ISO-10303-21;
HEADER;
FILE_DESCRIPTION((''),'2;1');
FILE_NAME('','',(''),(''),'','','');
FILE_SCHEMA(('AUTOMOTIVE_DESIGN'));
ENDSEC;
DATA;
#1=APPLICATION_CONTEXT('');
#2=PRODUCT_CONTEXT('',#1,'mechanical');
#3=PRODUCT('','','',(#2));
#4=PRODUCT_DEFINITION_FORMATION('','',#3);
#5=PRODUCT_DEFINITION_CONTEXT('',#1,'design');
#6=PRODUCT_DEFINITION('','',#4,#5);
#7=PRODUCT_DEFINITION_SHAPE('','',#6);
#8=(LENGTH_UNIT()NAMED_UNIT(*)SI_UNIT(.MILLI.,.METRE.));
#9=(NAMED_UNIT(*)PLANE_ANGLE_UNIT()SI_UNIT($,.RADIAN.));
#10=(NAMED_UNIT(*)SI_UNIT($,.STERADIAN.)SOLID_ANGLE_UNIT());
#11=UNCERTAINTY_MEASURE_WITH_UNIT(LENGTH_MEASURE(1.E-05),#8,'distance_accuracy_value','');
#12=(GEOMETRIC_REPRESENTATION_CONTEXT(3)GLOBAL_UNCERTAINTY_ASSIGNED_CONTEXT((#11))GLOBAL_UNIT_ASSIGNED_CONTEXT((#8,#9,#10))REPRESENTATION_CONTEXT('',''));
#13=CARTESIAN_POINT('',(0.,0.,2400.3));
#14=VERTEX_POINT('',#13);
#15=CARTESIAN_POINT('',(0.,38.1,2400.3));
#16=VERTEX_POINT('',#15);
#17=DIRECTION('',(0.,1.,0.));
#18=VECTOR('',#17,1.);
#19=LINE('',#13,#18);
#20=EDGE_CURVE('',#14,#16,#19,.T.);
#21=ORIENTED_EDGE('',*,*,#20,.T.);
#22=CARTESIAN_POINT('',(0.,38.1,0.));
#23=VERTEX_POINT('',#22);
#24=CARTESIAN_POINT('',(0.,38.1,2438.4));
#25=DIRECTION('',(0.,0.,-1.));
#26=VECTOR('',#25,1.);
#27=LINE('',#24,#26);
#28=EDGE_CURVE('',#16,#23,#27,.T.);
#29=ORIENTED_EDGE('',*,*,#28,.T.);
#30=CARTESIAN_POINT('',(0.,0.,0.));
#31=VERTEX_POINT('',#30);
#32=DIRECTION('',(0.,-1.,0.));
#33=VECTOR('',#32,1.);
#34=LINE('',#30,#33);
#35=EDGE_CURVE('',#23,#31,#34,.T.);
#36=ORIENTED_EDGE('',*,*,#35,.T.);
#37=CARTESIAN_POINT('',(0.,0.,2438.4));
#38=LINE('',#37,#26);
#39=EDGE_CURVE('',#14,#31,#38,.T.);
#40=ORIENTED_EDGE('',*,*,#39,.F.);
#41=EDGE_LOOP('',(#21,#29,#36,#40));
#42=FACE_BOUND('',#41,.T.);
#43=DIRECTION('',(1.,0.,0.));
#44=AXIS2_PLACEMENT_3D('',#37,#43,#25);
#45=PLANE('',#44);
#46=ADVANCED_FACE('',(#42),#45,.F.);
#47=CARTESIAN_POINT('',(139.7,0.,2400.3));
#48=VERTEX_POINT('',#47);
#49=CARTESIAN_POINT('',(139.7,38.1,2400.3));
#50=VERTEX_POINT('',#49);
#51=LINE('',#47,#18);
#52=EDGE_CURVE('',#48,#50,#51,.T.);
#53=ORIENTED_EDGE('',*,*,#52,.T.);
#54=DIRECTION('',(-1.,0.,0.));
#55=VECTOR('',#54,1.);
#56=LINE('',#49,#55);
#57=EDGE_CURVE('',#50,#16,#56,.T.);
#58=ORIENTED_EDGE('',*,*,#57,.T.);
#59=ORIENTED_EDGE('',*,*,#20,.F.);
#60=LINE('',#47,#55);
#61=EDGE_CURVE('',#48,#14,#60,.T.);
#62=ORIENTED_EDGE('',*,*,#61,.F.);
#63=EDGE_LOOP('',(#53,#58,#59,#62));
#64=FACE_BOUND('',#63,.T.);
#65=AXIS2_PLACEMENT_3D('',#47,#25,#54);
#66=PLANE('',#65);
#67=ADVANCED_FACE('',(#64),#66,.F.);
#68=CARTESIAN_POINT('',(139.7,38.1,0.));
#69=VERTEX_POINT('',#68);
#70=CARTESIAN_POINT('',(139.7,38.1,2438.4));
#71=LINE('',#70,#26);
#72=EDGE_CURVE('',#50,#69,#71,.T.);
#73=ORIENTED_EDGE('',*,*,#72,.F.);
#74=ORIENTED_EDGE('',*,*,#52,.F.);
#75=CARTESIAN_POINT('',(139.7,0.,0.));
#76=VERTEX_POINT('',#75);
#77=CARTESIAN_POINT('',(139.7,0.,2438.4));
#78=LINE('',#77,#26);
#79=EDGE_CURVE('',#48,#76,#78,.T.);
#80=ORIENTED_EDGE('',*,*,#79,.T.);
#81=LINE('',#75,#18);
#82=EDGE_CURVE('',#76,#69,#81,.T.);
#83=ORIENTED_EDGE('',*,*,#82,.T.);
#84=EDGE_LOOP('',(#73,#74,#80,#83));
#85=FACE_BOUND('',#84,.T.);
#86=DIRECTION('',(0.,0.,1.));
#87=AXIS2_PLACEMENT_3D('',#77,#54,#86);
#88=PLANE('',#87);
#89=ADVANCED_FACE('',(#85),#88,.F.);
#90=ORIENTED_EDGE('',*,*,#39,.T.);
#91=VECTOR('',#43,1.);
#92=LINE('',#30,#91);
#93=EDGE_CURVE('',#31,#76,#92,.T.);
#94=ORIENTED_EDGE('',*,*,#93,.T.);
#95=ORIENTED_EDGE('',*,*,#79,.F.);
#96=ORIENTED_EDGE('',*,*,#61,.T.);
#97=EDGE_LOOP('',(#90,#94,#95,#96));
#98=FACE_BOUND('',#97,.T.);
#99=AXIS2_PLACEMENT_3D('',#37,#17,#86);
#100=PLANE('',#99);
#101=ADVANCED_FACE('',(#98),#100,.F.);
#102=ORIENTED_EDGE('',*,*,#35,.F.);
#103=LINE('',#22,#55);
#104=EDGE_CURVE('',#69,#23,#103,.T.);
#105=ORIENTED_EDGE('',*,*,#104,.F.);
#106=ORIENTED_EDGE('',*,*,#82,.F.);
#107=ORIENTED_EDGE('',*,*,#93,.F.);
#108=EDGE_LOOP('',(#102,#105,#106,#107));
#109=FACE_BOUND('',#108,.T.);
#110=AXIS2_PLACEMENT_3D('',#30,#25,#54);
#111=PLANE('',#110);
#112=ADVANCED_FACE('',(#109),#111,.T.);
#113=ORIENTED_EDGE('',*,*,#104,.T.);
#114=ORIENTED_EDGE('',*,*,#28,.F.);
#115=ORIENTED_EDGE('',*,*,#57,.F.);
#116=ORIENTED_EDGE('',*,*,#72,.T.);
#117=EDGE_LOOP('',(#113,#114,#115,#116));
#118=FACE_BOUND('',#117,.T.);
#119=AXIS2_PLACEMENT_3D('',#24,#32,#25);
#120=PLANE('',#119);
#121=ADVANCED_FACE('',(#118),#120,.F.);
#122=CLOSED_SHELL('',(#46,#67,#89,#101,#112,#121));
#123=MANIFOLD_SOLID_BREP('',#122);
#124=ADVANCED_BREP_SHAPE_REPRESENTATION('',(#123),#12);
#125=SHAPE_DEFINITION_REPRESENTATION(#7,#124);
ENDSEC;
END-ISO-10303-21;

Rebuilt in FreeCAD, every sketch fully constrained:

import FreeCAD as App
import Part
import Sketcher

V = App.Vector
Q = App.Units.Quantity

doc = App.newDocument("Part")
body = doc.addObject("PartDesign::Body", "Body")

sketch1 = body.newObject("Sketcher::SketchObject", "Sketch")
sketch1.AttachmentSupport = (doc.getObject("XY_Plane"), [""])
sketch1.MapMode = "FlatFace"
sketch1.addGeometry([
    Part.LineSegment(V(0, 38, 0), V(0, 0, 0)),
    Part.LineSegment(V(0, 0, 0), V(140, 0, 0)),
    Part.LineSegment(V(140, 0, 0), V(140, 38, 0)),
    Part.LineSegment(V(140, 38, 0), V(0, 38, 0)),
], False)
sketch1.addConstraint([
    Sketcher.Constraint("Coincident", 0, 2, 1, 1),
    Sketcher.Constraint("Coincident", 1, 2, 2, 1),
    Sketcher.Constraint("Coincident", 2, 2, 3, 1),
    Sketcher.Constraint("Coincident", 3, 2, 0, 1),
    Sketcher.Constraint("Vertical", 0),
    Sketcher.Constraint("Horizontal", 1),
    Sketcher.Constraint("Vertical", 2),
    Sketcher.Constraint("Horizontal", 3),
    Sketcher.Constraint("Coincident", 0, 2, -1, 1),
    Sketcher.Constraint("DistanceX", 1, 1, 1, 2, Q("5.5 in")),
    Sketcher.Constraint("DistanceY", 0, 2, 0, 1, Q("1.5 in")),
])
pad1 = body.newObject("PartDesign::Pad", "Pad")
pad1.Profile = sketch1
pad1.Length = Q("96 in")

sketch2 = body.newObject("Sketcher::SketchObject", "Sketch001")
sketch2.AttachmentSupport = (doc.getObject("XZ_Plane"), [""])
sketch2.MapMode = "FlatFace"
sketch2.AttachmentOffset = App.Placement(V(0, 0, -1.5 * 25.4), App.Rotation())
sketch2.addGeometry([
    Part.LineSegment(V(0, 2400, 0), V(0, 2438, 0)),
    Part.LineSegment(V(0, 2438, 0), V(140, 2438, 0)),
    Part.LineSegment(V(140, 2438, 0), V(140, 2400, 0)),
    Part.LineSegment(V(140, 2400, 0), V(0, 2400, 0)),
], False)
sketch2.addConstraint([
    Sketcher.Constraint("Coincident", 0, 2, 1, 1),
    Sketcher.Constraint("Coincident", 1, 2, 2, 1),
    Sketcher.Constraint("Coincident", 2, 2, 3, 1),
    Sketcher.Constraint("Coincident", 3, 2, 0, 1),
    Sketcher.Constraint("Vertical", 0),
    Sketcher.Constraint("Horizontal", 1),
    Sketcher.Constraint("Vertical", 2),
    Sketcher.Constraint("Horizontal", 3),
    Sketcher.Constraint("PointOnObject", 0, 2, -2),
    Sketcher.Constraint("DistanceX", 1, 1, 1, 2, Q("5.5 in")),
    Sketcher.Constraint("DistanceY", 0, 1, 0, 2, Q("1.5 in")),
    Sketcher.Constraint("DistanceY", -1, 1, 0, 2, Q("96 in")),
])
pocket1 = body.newObject("PartDesign::Pocket", "Pocket")
pocket1.Profile = sketch2
pocket1.Type = "ThroughAll"
pocket1.Reversed = True

doc.recompute()
